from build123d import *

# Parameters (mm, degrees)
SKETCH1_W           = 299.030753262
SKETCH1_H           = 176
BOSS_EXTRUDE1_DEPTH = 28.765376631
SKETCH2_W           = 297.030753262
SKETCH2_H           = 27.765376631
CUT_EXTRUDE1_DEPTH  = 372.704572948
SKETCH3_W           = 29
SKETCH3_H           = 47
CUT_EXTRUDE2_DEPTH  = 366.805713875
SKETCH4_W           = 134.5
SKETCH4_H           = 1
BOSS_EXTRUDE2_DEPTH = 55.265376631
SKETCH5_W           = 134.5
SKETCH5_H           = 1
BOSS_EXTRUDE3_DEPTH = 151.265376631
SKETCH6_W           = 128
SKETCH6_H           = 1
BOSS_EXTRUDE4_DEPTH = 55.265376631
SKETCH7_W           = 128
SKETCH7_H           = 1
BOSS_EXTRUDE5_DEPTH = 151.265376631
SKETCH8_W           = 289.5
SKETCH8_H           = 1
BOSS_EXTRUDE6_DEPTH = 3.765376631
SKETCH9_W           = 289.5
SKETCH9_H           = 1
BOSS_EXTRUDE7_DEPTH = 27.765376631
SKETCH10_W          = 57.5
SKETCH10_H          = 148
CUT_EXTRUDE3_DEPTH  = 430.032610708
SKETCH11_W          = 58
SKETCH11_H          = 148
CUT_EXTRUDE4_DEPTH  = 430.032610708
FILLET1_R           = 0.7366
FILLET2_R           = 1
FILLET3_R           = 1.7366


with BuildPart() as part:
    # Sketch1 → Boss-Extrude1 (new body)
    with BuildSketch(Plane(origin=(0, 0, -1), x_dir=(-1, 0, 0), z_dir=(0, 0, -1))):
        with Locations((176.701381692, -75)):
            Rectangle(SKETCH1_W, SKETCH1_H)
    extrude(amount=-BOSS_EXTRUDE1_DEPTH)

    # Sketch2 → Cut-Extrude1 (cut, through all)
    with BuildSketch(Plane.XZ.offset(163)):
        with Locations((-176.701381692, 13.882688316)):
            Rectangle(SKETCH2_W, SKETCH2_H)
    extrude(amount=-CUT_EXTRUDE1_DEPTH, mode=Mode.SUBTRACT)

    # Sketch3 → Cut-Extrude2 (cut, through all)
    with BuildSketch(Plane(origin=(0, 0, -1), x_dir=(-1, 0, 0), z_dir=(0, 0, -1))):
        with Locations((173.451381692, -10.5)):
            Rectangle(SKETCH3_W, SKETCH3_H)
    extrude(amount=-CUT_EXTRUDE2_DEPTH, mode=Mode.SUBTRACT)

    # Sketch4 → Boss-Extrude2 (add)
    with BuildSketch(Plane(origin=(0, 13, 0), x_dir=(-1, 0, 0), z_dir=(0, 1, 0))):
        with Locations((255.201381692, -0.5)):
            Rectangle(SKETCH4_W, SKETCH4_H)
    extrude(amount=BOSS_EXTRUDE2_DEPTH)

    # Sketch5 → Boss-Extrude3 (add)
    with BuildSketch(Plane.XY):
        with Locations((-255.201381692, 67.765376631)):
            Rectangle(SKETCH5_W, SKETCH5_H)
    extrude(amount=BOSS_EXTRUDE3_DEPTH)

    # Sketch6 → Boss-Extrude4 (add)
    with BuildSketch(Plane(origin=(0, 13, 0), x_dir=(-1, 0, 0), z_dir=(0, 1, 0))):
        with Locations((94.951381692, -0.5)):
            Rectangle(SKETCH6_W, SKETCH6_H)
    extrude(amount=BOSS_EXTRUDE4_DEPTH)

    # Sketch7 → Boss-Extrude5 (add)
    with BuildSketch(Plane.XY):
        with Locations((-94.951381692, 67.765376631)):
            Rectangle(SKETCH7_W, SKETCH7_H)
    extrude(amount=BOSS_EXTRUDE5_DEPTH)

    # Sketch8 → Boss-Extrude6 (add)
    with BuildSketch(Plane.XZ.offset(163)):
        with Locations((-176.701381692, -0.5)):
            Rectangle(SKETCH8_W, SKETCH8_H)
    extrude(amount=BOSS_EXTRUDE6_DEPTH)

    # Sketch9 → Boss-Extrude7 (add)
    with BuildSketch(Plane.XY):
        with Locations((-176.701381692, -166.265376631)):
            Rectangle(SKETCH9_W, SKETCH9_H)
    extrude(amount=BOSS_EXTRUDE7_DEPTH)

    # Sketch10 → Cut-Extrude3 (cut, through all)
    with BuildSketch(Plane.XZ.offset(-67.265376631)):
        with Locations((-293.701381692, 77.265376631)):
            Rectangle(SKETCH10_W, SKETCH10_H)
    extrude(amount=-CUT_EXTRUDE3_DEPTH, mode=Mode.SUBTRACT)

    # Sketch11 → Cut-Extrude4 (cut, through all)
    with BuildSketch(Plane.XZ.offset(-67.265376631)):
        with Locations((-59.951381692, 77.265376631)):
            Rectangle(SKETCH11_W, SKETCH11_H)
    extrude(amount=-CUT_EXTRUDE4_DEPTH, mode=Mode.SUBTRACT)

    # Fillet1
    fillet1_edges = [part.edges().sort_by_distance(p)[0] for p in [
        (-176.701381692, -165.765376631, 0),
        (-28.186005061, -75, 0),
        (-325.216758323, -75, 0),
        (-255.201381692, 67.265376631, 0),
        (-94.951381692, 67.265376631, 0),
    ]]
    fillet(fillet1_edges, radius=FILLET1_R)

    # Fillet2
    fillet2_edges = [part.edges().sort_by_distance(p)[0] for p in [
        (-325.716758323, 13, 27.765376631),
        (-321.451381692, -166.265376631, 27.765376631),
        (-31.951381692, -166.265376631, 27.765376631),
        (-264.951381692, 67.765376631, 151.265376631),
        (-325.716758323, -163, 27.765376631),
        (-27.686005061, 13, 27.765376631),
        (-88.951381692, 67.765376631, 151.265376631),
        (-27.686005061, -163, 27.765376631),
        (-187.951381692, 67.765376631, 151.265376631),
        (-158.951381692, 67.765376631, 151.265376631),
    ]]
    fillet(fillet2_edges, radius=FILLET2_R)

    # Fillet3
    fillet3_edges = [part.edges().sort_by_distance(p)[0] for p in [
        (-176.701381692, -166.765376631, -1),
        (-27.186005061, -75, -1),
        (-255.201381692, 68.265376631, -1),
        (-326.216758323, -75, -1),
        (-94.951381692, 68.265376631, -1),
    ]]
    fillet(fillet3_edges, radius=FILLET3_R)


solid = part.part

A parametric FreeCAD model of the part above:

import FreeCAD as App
import Part
import Sketcher
from FreeCAD import Vector
Q = App.Units.Quantity


def edges_at(feature, points):
    """Names of the edges that pass closest to the given points."""
    edges = feature.Shape.Edges
    near = lambda p: min(range(len(edges)), key=lambda i: edges[i].distToShape(Part.Vertex(*p))[0])
    return sorted({f"Edge{near(p) + 1}" for p in points})


def add_polygon(sketch, points):
    """Adds a closed chain of lines whose ends are joined by coincident constraints."""
    first, n = sketch.GeometryCount, len(points)
    for a, b in zip(points, points[1:] + points[:1]):
        sketch.addGeometry(Part.LineSegment(App.Vector(*a, 0), App.Vector(*b, 0)), False)
    for i in range(n):
        sketch.addConstraint(Sketcher.Constraint("Coincident", first + i, 2, first + (i + 1) % n, 1))

doc = App.newDocument("Part")
body = doc.addObject("PartDesign::Body", "Body")

sketch1 = body.newObject("Sketcher::SketchObject", "Sketch")
sketch1.AttachmentSupport = (doc.getObject("XY_Plane"), [""])
sketch1.MapMode = "FlatFace"
sketch1.AttachmentOffset = App.Placement(Vector(0, 0, -1), App.Rotation())
add_polygon(sketch1, [(-27, 13), (-27, -163), (-326, -163), (-326, 13)])
sketch1.addConstraint([
    Sketcher.Constraint("Vertical", 0),
    Sketcher.Constraint("Horizontal", 1),
    Sketcher.Constraint("Vertical", 2),
    Sketcher.Constraint("Horizontal", 3),
    Sketcher.Constraint("DistanceY", 0, 2, 0, 1, Q("176 mm")),
    Sketcher.Constraint("DistanceY", 0, 2, -1, 1, Q("163 mm")),
    Sketcher.Constraint("DistanceX", 1, 2, 1, 1, Q("299.030753 mm")),
    Sketcher.Constraint("DistanceX", 1, 2, -1, 1, Q("326.216758 mm")),
])
pad1 = body.newObject("PartDesign::Pad", "Pad")
pad1.Profile = sketch1
pad1.Length = 28.765377

sketch2 = body.newObject("Sketcher::SketchObject", "Sketch001")
sketch2.AttachmentSupport = (doc.getObject("XZ_Plane"), [""])
sketch2.MapMode = "FlatFace"
sketch2.AttachmentOffset = App.Placement(Vector(0, 0, 163), App.Rotation())
add_polygon(sketch2, [(-325, 28), (-325, 0), (-28, 0), (-28, 28)])
sketch2.addConstraint([
    Sketcher.Constraint("Vertical", 0),
    Sketcher.Constraint("Horizontal", 1),
    Sketcher.Constraint("Vertical", 2),
    Sketcher.Constraint("Horizontal", 3),
    Sketcher.Constraint("PointOnObject", 0, 2, -1),
    Sketcher.Constraint("DistanceX", 1, 1, 1, 2, Q("297.030753 mm")),
    Sketcher.Constraint("DistanceY", 0, 2, 0, 1, Q("27.765377 mm")),
    Sketcher.Constraint("DistanceX", 0, 2, -1, 1, Q("325.216758 mm")),
])
pocket1 = body.newObject("PartDesign::Pocket", "Pocket")
pocket1.Profile = sketch2
pocket1.Type = "ThroughAll"

sketch3 = body.newObject("Sketcher::SketchObject", "Sketch002")
sketch3.AttachmentSupport = (doc.getObject("XY_Plane"), [""])
sketch3.MapMode = "FlatFace"
sketch3.AttachmentOffset = App.Placement(Vector(0, 0, -1), App.Rotation())
add_polygon(sketch3, [(-159, 13), (-159, -34), (-188, -34), (-188, 13)])
sketch3.addConstraint([
    Sketcher.Constraint("Vertical", 0),
    Sketcher.Constraint("Horizontal", 1),
    Sketcher.Constraint("Vertical", 2),
    Sketcher.Constraint("Horizontal", 3),
    Sketcher.Constraint("DistanceX", 1, 2, 1, 1, Q("29 mm")),
    Sketcher.Constraint("DistanceY", 0, 2, 0, 1, Q("47 mm")),
    Sketcher.Constraint("DistanceY", 0, 2, -1, 1, Q("34 mm")),
    Sketcher.Constraint("DistanceX", 0, 2, -1, 1, Q("158.951382 mm")),
])
pocket2 = body.newObject("PartDesign::Pocket", "Pocket001")
pocket2.Profile = sketch3
pocket2.Type = "ThroughAll"
pocket2.Reversed = True

sketch4 = body.newObject("Sketcher::SketchObject", "Sketch003")
sketch4.AttachmentSupport = (doc.getObject("XZ_Plane"), [""])
sketch4.MapMode = "FlatFace"
sketch4.AttachmentOffset = App.Placement(Vector(0, 0, -13), App.Rotation())
add_polygon(sketch4, [(-188, 0), (-188, -1), (-322.5, -1), (-322.5, 0)])
sketch4.addConstraint([
    Sketcher.Constraint("Vertical", 0),
    Sketcher.Constraint("Horizontal", 1),
    Sketcher.Constraint("Vertical", 2),
    Sketcher.Constraint("Horizontal", 3),
    Sketcher.Constraint("PointOnObject", 2, 2, -1),
    Sketcher.Constraint("DistanceY", 0, 2, 0, 1, Q("1 mm")),
    Sketcher.Constraint("DistanceX", 1, 2, 1, 1, Q("134.5 mm")),
    Sketcher.Constraint("DistanceX", 0, 2, -1, 1, Q("187.951382 mm")),
])
pad2 = body.newObject("PartDesign::Pad", "Pad001")
pad2.Profile = sketch4
pad2.Length = 55.265377
pad2.Reversed = True

sketch5 = body.newObject("Sketcher::SketchObject", "Sketch004")
sketch5.AttachmentSupport = (doc.getObject("XY_Plane"), [""])
sketch5.MapMode = "FlatFace"
add_polygon(sketch5, [(-322.5, 68.3), (-322.5, 67.3), (-188, 67.3), (-188, 68.3)])
sketch5.addConstraint([
    Sketcher.Constraint("Vertical", 0),
    Sketcher.Constraint("Horizontal", 1),
    Sketcher.Constraint("Vertical", 2),
    Sketcher.Constraint("Horizontal", 3),
    Sketcher.Constraint("DistanceY", 0, 2, 0, 1, Q("1 mm")),
    Sketcher.Constraint("DistanceX", 1, 1, 1, 2, Q("134.5 mm")),
    Sketcher.Constraint("DistanceX", 0, 2, -1, 1, Q("322.451382 mm")),
    Sketcher.Constraint("DistanceY", -1, 1, 0, 2, Q("67.265377 mm")),
])
pad3 = body.newObject("PartDesign::Pad", "Pad002")
pad3.Profile = sketch5
pad3.Length = 151.265377

sketch6 = body.newObject("Sketcher::SketchObject", "Sketch005")
sketch6.AttachmentSupport = (doc.getObject("XZ_Plane"), [""])
sketch6.MapMode = "FlatFace"
sketch6.AttachmentOffset = App.Placement(Vector(0, 0, -13), App.Rotation())
add_polygon(sketch6, [(-31, 0), (-31, -1), (-159, -1), (-159, 0)])
sketch6.addConstraint([
    Sketcher.Constraint("Vertical", 0),
    Sketcher.Constraint("Horizontal", 1),
    Sketcher.Constraint("Vertical", 2),
    Sketcher.Constraint("Horizontal", 3),
    Sketcher.Constraint("PointOnObject", 2, 2, -1),
    Sketcher.Constraint("DistanceX", 1, 2, 1, 1, Q("128 mm")),
    Sketcher.Constraint("DistanceY", 0, 2, 0, 1, Q("1 mm")),
    Sketcher.Constraint("DistanceX", 0, 2, -1, 1, Q("30.951382 mm")),
])
pad4 = body.newObject("PartDesign::Pad", "Pad003")
pad4.Profile = sketch6
pad4.Length = 55.265377
pad4.Reversed = True

sketch7 = body.newObject("Sketcher::SketchObject", "Sketch006")
sketch7.AttachmentSupport = (doc.getObject("XY_Plane"), [""])
sketch7.MapMode = "FlatFace"
add_polygon(sketch7, [(-159, 68.3), (-159, 67.3), (-31, 67.3), (-31, 68.3)])
sketch7.addConstraint([
    Sketcher.Constraint("Vertical", 0),
    Sketcher.Constraint("Horizontal", 1),
    Sketcher.Constraint("Vertical", 2),
    Sketcher.Constraint("Horizontal", 3),
    Sketcher.Constraint("DistanceX", 1, 1, 1, 2, Q("128 mm")),
    Sketcher.Constraint("DistanceY", 0, 2, 0, 1, Q("1 mm")),
    Sketcher.Constraint("DistanceX", 0, 2, -1, 1, Q("158.951382 mm")),
    Sketcher.Constraint("DistanceY", -1, 1, 0, 2, Q("67.265377 mm")),
])
pad5 = body.newObject("PartDesign::Pad", "Pad004")
pad5.Profile = sketch7
pad5.Length = 151.265377

sketch8 = body.newObject("Sketcher::SketchObject", "Sketch007")
sketch8.AttachmentSupport = (doc.getObject("XZ_Plane"), [""])
sketch8.MapMode = "FlatFace"
sketch8.AttachmentOffset = App.Placement(Vector(0, 0, 163), App.Rotation())
add_polygon(sketch8, [(-321.5, 0), (-321.5, -1), (-32, -1), (-32, 0)])
sketch8.addConstraint([
    Sketcher.Constraint("Vertical", 0),
    Sketcher.Constraint("Horizontal", 1),
    Sketcher.Constraint("Vertical", 2),
    Sketcher.Constraint("Horizontal", 3),
    Sketcher.Constraint("PointOnObject", 2, 2, -1),
    Sketcher.Constraint("DistanceY", 0, 2, 0, 1, Q("1 mm")),
    Sketcher.Constraint("DistanceX", 1, 1, 1, 2, Q("289.5 mm")),
    Sketcher.Constraint("DistanceX", 0, 2, -1, 1, Q("321.451382 mm")),
])
pad6 = body.newObject("PartDesign::Pad", "Pad005")
pad6.Profile = sketch8
pad6.Length = 3.765377

sketch9 = body.newObject("Sketcher::SketchObject", "Sketch008")
sketch9.AttachmentSupport = (doc.getObject("XY_Plane"), [""])
sketch9.MapMode = "FlatFace"
add_polygon(sketch9, [(-321.5, -165.8), (-321.5, -166.8), (-32, -166.8), (-32, -165.8)])
sketch9.addConstraint([
    Sketcher.Constraint("Vertical", 0),
    Sketcher.Constraint("Horizontal", 1),
    Sketcher.Constraint("Vertical", 2),
    Sketcher.Constraint("Horizontal", 3),
    Sketcher.Constraint("DistanceY", 0, 2, 0, 1, Q("1 mm")),
    Sketcher.Constraint("DistanceX", 1, 1, 1, 2, Q("289.5 mm")),
    Sketcher.Constraint("DistanceX", 0, 2, -1, 1, Q("321.451382 mm")),
    Sketcher.Constraint("DistanceY", 0, 2, -1, 1, Q("166.765377 mm")),
])
pad7 = body.newObject("PartDesign::Pad", "Pad006")
pad7.Profile = sketch9
pad7.Length = 27.765377

sketch10 = body.newObject("Sketcher::SketchObject", "Sketch009")
sketch10.AttachmentSupport = (doc.getObject("XZ_Plane"), [""])
sketch10.MapMode = "FlatFace"
sketch10.AttachmentOffset = App.Placement(Vector(0, 0, -67.265377), App.Rotation())
add_polygon(sketch10, [(-322, 151), (-322, 3), (-265, 3), (-265, 151)])
sketch10.addConstraint([
    Sketcher.Constraint("Vertical", 0),
    Sketcher.Constraint("Horizontal", 1),
    Sketcher.Constraint("Vertical", 2),
    Sketcher.Constraint("Horizontal", 3),
    Sketcher.Constraint("DistanceY", 0, 2, 0, 1, Q("148 mm")),
    Sketcher.Constraint("DistanceX", 1, 1, 1, 2, Q("57.5 mm")),
    Sketcher.Constraint("DistanceX", 0, 2, -1, 1, Q("322.451382 mm")),
    Sketcher.Constraint("DistanceY", -1, 1, 0, 2, Q("3.265377 mm")),
])
pocket3 = body.newObject("PartDesign::Pocket", "Pocket002")
pocket3.Profile = sketch10
pocket3.Type = "ThroughAll"

sketch11 = body.newObject("Sketcher::SketchObject", "Sketch010")
sketch11.AttachmentSupport = (doc.getObject("XZ_Plane"), [""])
sketch11.MapMode = "FlatFace"
sketch11.AttachmentOffset = App.Placement(Vector(0, 0, -67.265377), App.Rotation())
add_polygon(sketch11, [(-89, 151), (-89, 3), (-31, 3), (-31, 151)])
sketch11.addConstraint([
    Sketcher.Constraint("Vertical", 0),
    Sketcher.Constraint("Horizontal", 1),
    Sketcher.Constraint("Vertical", 2),
    Sketcher.Constraint("Horizontal", 3),
    Sketcher.Constraint("DistanceX", 1, 1, 1, 2, Q("58 mm")),
    Sketcher.Constraint("DistanceY", 0, 2, 0, 1, Q("148 mm")),
    Sketcher.Constraint("DistanceX", 0, 2, -1, 1, Q("88.951382 mm")),
    Sketcher.Constraint("DistanceY", -1, 1, 0, 2, Q("3.265377 mm")),
])
pocket4 = body.newObject("PartDesign::Pocket", "Pocket003")
pocket4.Profile = sketch11
pocket4.Type = "ThroughAll"
doc.recompute()

fillet = body.newObject("PartDesign::Fillet", "Fillet")
fillet.Base = (pocket4, edges_at(pocket4, [
    (-176.701, -165.765, 0),
    (-28.186, -75, 0),
    (-325.217, -75, 0),
    (-255.201, 67.265, 0),
    (-94.951, 67.265, 0),
]))
fillet.Radius = 0.7366
doc.recompute()

fillet2 = body.newObject("PartDesign::Fillet", "Fillet001")
fillet2.Base = (fillet, edges_at(fillet, [
    (-325.717, 13, 27.765),
    (-321.451, -166.265, 27.765),
    (-31.951, -166.265, 27.765),
    (-264.951, 67.765, 151.265),
    (-325.717, -163, 27.765),
    (-27.686, 13, 27.765),
    (-88.951, 67.765, 151.265),
    (-27.686, -163, 27.765),
    (-187.951, 67.765, 151.265),
    (-158.951, 67.765, 151.265),
]))
fillet2.Radius = 1
doc.recompute()

fillet3 = body.newObject("PartDesign::Fillet", "Fillet002")
fillet3.Base = (fillet2, edges_at(fillet2, [
    (-176.701, -166.765, -1),
    (-27.186, -75, -1),
    (-255.201, 68.265, -1),
    (-326.217, -75, -1),
    (-94.951, 68.265, -1),
]))
fillet3.Radius = 1.7366

doc.recompute()
